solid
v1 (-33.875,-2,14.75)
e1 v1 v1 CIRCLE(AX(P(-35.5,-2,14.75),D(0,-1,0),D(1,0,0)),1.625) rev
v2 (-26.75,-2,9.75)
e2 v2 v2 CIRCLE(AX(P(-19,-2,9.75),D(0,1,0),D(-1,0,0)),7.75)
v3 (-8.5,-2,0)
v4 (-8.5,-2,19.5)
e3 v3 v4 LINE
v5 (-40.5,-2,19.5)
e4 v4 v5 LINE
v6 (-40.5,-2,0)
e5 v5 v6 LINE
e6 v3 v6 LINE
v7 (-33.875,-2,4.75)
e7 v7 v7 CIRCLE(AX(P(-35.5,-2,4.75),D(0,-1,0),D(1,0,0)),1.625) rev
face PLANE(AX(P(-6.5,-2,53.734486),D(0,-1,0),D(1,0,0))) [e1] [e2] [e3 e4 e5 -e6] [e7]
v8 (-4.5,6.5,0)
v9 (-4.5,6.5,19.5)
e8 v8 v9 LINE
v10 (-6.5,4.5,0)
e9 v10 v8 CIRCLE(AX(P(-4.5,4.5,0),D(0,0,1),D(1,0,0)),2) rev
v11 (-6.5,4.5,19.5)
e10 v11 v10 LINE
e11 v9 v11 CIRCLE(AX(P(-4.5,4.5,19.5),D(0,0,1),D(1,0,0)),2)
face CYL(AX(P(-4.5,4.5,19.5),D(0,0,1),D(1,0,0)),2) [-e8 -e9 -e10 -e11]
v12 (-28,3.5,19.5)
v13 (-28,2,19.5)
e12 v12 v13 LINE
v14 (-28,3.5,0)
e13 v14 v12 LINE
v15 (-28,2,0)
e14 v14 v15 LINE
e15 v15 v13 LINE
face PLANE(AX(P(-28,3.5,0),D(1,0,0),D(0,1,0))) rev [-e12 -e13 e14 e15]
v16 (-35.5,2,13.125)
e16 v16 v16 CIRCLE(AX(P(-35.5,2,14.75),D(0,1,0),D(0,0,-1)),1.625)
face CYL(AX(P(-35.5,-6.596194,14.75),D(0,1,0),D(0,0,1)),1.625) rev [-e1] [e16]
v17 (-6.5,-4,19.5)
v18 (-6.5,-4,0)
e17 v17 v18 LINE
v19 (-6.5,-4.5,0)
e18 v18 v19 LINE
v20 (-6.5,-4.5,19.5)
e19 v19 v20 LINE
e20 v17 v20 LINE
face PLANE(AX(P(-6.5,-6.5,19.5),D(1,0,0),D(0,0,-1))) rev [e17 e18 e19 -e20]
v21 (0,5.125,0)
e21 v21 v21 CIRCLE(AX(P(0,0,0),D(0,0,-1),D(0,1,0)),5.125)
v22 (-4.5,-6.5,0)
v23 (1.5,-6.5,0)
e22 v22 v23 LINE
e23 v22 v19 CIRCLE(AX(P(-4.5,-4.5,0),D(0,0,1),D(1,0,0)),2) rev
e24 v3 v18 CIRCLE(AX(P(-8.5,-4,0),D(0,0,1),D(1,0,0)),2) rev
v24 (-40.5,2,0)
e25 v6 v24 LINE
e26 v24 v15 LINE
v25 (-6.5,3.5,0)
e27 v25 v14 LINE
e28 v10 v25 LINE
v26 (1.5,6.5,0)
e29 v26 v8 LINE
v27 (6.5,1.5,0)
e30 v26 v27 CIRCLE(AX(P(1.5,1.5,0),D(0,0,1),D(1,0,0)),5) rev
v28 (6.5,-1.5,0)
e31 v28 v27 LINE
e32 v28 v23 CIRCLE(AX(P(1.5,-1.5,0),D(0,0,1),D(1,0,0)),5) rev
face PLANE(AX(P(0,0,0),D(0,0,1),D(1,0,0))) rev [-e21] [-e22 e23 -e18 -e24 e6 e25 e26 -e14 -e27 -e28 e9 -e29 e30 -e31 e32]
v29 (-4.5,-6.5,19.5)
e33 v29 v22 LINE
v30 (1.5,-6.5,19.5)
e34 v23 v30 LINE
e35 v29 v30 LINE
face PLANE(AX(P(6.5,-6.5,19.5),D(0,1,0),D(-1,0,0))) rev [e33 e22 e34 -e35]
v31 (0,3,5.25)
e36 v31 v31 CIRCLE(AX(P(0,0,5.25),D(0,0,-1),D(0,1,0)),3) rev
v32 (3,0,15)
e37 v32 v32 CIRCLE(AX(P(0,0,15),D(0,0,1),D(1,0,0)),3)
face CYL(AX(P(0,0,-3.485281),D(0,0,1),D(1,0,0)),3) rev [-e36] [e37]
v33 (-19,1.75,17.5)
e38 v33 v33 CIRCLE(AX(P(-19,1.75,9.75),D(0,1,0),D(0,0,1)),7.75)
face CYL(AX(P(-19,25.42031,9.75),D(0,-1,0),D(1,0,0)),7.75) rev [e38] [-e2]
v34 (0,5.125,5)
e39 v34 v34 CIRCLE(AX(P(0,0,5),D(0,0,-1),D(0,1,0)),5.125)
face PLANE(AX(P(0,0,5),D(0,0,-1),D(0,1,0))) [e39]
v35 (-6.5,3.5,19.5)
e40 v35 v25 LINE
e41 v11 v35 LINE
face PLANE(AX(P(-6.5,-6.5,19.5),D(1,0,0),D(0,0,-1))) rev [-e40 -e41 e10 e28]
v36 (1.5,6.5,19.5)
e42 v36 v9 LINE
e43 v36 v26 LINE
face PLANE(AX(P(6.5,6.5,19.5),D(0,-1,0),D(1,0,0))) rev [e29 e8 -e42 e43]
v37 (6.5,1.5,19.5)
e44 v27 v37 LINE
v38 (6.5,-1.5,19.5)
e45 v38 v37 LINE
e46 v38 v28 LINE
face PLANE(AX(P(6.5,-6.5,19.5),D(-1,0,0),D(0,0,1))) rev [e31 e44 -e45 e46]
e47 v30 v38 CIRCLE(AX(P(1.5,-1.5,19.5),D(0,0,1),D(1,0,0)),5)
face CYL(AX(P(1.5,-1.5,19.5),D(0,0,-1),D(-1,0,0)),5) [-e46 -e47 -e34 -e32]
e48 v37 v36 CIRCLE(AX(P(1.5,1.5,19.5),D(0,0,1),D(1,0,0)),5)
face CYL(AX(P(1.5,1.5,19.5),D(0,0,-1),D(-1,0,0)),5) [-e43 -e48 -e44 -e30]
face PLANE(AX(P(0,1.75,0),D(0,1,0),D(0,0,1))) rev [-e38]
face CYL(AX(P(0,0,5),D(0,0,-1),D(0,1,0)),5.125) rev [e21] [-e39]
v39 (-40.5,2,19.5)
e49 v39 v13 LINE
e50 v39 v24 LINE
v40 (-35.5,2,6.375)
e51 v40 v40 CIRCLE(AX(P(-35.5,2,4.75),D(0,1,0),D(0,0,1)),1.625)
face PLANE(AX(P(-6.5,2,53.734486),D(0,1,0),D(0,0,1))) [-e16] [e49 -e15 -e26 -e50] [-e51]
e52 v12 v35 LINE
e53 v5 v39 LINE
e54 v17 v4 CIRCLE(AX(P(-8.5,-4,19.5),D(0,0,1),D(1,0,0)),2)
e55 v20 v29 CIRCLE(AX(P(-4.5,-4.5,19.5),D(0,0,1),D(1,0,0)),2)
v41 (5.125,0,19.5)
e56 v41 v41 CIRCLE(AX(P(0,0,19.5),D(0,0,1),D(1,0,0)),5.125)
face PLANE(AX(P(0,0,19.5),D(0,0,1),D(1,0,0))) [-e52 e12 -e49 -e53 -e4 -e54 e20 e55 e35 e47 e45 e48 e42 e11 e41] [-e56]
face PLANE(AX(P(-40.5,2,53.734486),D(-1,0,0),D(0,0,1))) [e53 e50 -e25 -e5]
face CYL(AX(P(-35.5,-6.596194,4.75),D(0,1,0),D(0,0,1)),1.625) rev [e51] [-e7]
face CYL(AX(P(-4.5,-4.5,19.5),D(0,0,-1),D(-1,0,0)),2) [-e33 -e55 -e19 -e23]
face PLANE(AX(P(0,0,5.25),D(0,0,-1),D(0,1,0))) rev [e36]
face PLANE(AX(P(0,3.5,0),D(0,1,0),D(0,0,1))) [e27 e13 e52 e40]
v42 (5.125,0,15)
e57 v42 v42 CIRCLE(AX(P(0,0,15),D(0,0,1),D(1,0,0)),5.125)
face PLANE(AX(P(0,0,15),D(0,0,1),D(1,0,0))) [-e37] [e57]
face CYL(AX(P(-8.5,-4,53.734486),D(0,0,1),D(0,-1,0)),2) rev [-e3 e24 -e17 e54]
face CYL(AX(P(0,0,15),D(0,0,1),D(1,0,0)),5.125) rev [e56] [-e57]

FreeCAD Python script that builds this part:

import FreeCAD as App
import Part
import Sketcher
from FreeCAD import Vector
Q = App.Units.Quantity


def edges_at(feature, points):
    """Names of the edges that pass closest to the given points."""
    edges = feature.Shape.Edges
    near = lambda p: min(range(len(edges)), key=lambda i: edges[i].distToShape(Part.Vertex(*p))[0])
    return sorted({f"Edge{near(p) + 1}" for p in points})

doc = App.newDocument("Part")
body = doc.addObject("PartDesign::Body", "Body")

# Sketch on XY plane
sketch1 = body.newObject("Sketcher::SketchObject", "Sketch")
sketch1.AttachmentSupport = (doc.getObject("XY_Plane"), [""])
sketch1.MapMode = "FlatFace"
sketch1.addGeometry([
    Part.LineSegment(Vector(-6.5, 6.5, 0), Vector(-6.5, -6.5, 0)),
    Part.LineSegment(Vector(-6.5, -6.5, 0), Vector(6.5, -6.5, 0)),
    Part.LineSegment(Vector(6.5, -6.5, 0), Vector(6.5, 6.5, 0)),
    Part.LineSegment(Vector(6.5, 6.5, 0), Vector(-6.5, 6.5, 0)),
], False)
sketch1.addConstraint([
    Sketcher.Constraint("Coincident", 0, 2, 1, 1),
    Sketcher.Constraint("Coincident", 1, 2, 2, 1),
    Sketcher.Constraint("Coincident", 2, 2, 3, 1),
    Sketcher.Constraint("Coincident", 3, 2, 0, 1),
    Sketcher.Constraint("Vertical", 0),
    Sketcher.Constraint("Horizontal", 1),
    Sketcher.Constraint("Vertical", 2),
    Sketcher.Constraint("Horizontal", 3),
    Sketcher.Constraint("Symmetric", 0, 2, 2, 2, -1, 1),
    Sketcher.Constraint("Equal", 3, 0),
    Sketcher.Constraint("DistanceX", 1, 1, 1, 2, Q("13 mm")),
])
pad1 = body.newObject("PartDesign::Pad", "Pad")
pad1.Profile = sketch1
pad1.Length = 19.5

# Sketch on XY plane
sketch2 = body.newObject("Sketcher::SketchObject", "Sketch001")
sketch2.AttachmentSupport = (doc.getObject("XY_Plane"), [""])
sketch2.MapMode = "FlatFace"
sketch2.addGeometry([
    Part.LineSegment(Vector(-40.5, -2, 0), Vector(-40.5, 2, 0)),
    Part.LineSegment(Vector(-40.5, 2, 0), Vector(-6.5, 2, 0)),
    Part.LineSegment(Vector(-6.5, 2, 0), Vector(-6.5, -2, 0)),
    Part.LineSegment(Vector(-6.5, -2, 0), Vector(-40.5, -2, 0)),
], False)
sketch2.addConstraint([
    Sketcher.Constraint("Coincident", 0, 2, 1, 1),
    Sketcher.Constraint("Coincident", 1, 2, 2, 1),
    Sketcher.Constraint("Coincident", 2, 2, 3, 1),
    Sketcher.Constraint("Coincident", 3, 2, 0, 1),
    Sketcher.Constraint("Vertical", 0),
    Sketcher.Constraint("Horizontal", 1),
    Sketcher.Constraint("Vertical", 2),
    Sketcher.Constraint("Horizontal", 3),
    Sketcher.Constraint("DistanceX", 1, 1, 1, 2, Q("34 mm")),
    Sketcher.Constraint("DistanceY", 0, 1, 0, 2, Q("4 mm")),
    Sketcher.Constraint("DistanceY", -1, 1, 0, 2, Q("2 mm")),
    Sketcher.Constraint("DistanceX", 0, 2, -1, 1, Q("40.5 mm")),
])
pad2 = body.newObject("PartDesign::Pad", "Pad001")
pad2.Profile = sketch2
pad2.Length = 19.5

# Sketch on XY plane
sketch3 = body.newObject("Sketcher::SketchObject", "Sketch002")
sketch3.AttachmentSupport = (doc.getObject("XY_Plane"), [""])
sketch3.MapMode = "FlatFace"
sketch3.AttachmentOffset = App.Placement(Vector(0, 0, 19.5), App.Rotation())
sketch3.addGeometry(Part.Circle(Vector(0, 0, 0), Vector(0, 0, 1), 5.125), False)
sketch3.addConstraint([
    Sketcher.Constraint("Coincident", 0, 3, -1, 1),
    Sketcher.Constraint("Diameter", 0, Q("10.25 mm")),
])
pocket1 = body.newObject("PartDesign::Pocket", "Pocket")
pocket1.Profile = sketch3
pocket1.Length = 4.5

# Sketch on XY plane
sketch4 = body.newObject("Sketcher::SketchObject", "Sketch003")
sketch4.AttachmentSupport = (doc.getObject("XY_Plane"), [""])
sketch4.MapMode = "FlatFace"
sketch4.AttachmentOffset = App.Placement(Vector(0, 0, 5), App.Rotation())
sketch4.addGeometry(Part.Circle(Vector(0, 0, 0), Vector(0, 0, 1), 5.125), False)
sketch4.addConstraint([
    Sketcher.Constraint("Coincident", 0, 3, -1, 1),
    Sketcher.Constraint("Diameter", 0, Q("10.25 mm")),
])
pocket2 = body.newObject("PartDesign::Pocket", "Pocket001")
pocket2.Profile = sketch4
pocket2.Length = 5

# Sketch on XY plane
sketch5 = body.newObject("Sketcher::SketchObject", "Sketch004")
sketch5.AttachmentSupport = (doc.getObject("XY_Plane"), [""])
sketch5.MapMode = "FlatFace"
sketch5.AttachmentOffset = App.Placement(Vector(0, 0, 15), App.Rotation())
sketch5.addGeometry(Part.Circle(Vector(0, 0, 0), Vector(0, 0, 1), 3), False)
sketch5.addConstraint([
    Sketcher.Constraint("Coincident", 0, 3, -1, 1),
    Sketcher.Constraint("Diameter", 0, Q("6 mm")),
])
pocket3 = body.newObject("PartDesign::Pocket", "Pocket002")
pocket3.Profile = sketch5
pocket3.Length = 10

# Sketch on XY plane
sketch6 = body.newObject("Sketcher::SketchObject", "Sketch005")
sketch6.AttachmentSupport = (doc.getObject("XY_Plane"), [""])
sketch6.MapMode = "FlatFace"
sketch6.AttachmentOffset = App.Placement(Vector(0, 0, 5.25), App.Rotation())
sketch6.addGeometry(Part.Circle(Vector(0, 0, 0), Vector(0, 0, 1), 3), False)
sketch6.addConstraint([
    Sketcher.Constraint("Coincident", 0, 3, -1, 1),
    Sketcher.Constraint("Diameter", 0, Q("6 mm")),
])
pad3 = body.newObject("PartDesign::Pad", "Pad002")
pad3.Profile = sketch6
pad3.Length = 0.25
pad3.Reversed = True
doc.recompute()

fillet = body.newObject("PartDesign::Fillet", "Fillet")
fillet.Base = (pad3, edges_at(pad3, [(6.5, 6.5, 9.75)]))
fillet.Radius = 5
doc.recompute()

fillet2 = body.newObject("PartDesign::Fillet", "Fillet001")
fillet2.Base = (fillet, edges_at(fillet, [(6.5, -6.5, 9.75)]))
fillet2.Radius = 5
doc.recompute()

fillet3 = body.newObject("PartDesign::Fillet", "Fillet002")
fillet3.Base = (fillet2, edges_at(fillet2, [(-6.5, 6.5, 9.75)]))
fillet3.Radius = 2
doc.recompute()

fillet4 = body.newObject("PartDesign::Fillet", "Fillet003")
fillet4.Base = (fillet3, edges_at(fillet3, [(-6.5, -6.5, 9.75)]))
fillet4.Radius = 2
doc.recompute()

fillet5 = body.newObject("PartDesign::Fillet", "Fillet004")
fillet5.Base = (fillet4, edges_at(fillet4, [(-6.5, -2, 9.75)]))
fillet5.Radius = 2

# Sketch on XZ plane
sketch7 = body.newObject("Sketcher::SketchObject", "Sketch006")
sketch7.AttachmentSupport = (doc.getObject("XZ_Plane"), [""])
sketch7.MapMode = "FlatFace"
sketch7.AttachmentOffset = App.Placement(Vector(0, 0, -2), App.Rotation())
sketch7.addGeometry([
    Part.Circle(Vector(-35.5, 4.75, 0), Vector(0, 0, 1), 1.625),
    Part.Circle(Vector(-35.5, 14.75, 0), Vector(0, 0, 1), 1.625),
], False)
sketch7.addConstraint([
    Sketcher.Constraint("Equal", 0, 1),
    Sketcher.Constraint("Vertical", 0, 3, 1, 3),
    Sketcher.Constraint("Diameter", 0, Q("3.25 mm")),
    Sketcher.Constraint("DistanceY", 0, 3, 1, 3, Q("10 mm")),
    Sketcher.Constraint("DistanceX", 0, 3, -1, 1, Q("35.5 mm")),
    Sketcher.Constraint("DistanceY", -1, 1, 0, 3, Q("4.75 mm")),
])
pocket4 = body.newObject("PartDesign::Pocket", "Pocket003")
pocket4.Profile = sketch7
pocket4.Length = 4
pocket4.Reversed = True

# Sketch on XZ plane
sketch8 = body.newObject("Sketcher::SketchObject", "Sketch007")
sketch8.AttachmentSupport = (doc.getObject("XZ_Plane"), [""])
sketch8.MapMode = "FlatFace"
sketch8.AttachmentOffset = App.Placement(Vector(0, 0, -2), App.Rotation())
sketch8.addGeometry([
    Part.LineSegment(Vector(-6.5, 19.5, 0), Vector(-6.5, 0, 0)),
    Part.LineSegment(Vector(-6.5, 0, 0), Vector(-28, 0, 0)),
    Part.LineSegment(Vector(-28, 0, 0), Vector(-28, 19.5, 0)),
    Part.LineSegment(Vector(-28, 19.5, 0), Vector(-6.5, 19.5, 0)),
], False)
sketch8.addConstraint([
    Sketcher.Constraint("Coincident", 0, 2, 1, 1),
    Sketcher.Constraint("Coincident", 1, 2, 2, 1),
    Sketcher.Constraint("Coincident", 2, 2, 3, 1),
    Sketcher.Constraint("Coincident", 3, 2, 0, 1),
    Sketcher.Constraint("Vertical", 0),
    Sketcher.Constraint("Horizontal", 1),
    Sketcher.Constraint("Vertical", 2),
    Sketcher.Constraint("Horizontal", 3),
    Sketcher.Constraint("PointOnObject", 0, 2, -1),
    Sketcher.Constraint("DistanceX", 1, 2, 1, 1, Q("21.5 mm")),
    Sketcher.Constraint("DistanceY", 0, 2, 0, 1, Q("19.5 mm")),
    Sketcher.Constraint("DistanceX", 1, 2, -1, 1, Q("28 mm")),
])
pad4 = body.newObject("PartDesign::Pad", "Pad003")
pad4.Profile = sketch8
pad4.Length = 1.5
pad4.Reversed = True

# Sketch on XZ plane
sketch9 = body.newObject("Sketcher::SketchObject", "Sketch008")
sketch9.AttachmentSupport = (doc.getObject("XZ_Plane"), [""])
sketch9.MapMode = "FlatFace"
sketch9.AttachmentOffset = App.Placement(Vector(0, 0, 2), App.Rotation())
sketch9.addGeometry(Part.Circle(Vector(-19, 9.75, 0), Vector(0, 0, 1), 7.75), False)
sketch9.addConstraint([
    Sketcher.Constraint("Diameter", 0, Q("15.5 mm")),
    Sketcher.Constraint("DistanceX", 0, 3, -1, 1, Q("19 mm")),
    Sketcher.Constraint("DistanceY", -1, 1, 0, 3, Q("9.75 mm")),
])
pocket5 = body.newObject("PartDesign::Pocket", "Pocket004")
pocket5.Profile = sketch9
pocket5.Length = 3.75

doc.recompute()
